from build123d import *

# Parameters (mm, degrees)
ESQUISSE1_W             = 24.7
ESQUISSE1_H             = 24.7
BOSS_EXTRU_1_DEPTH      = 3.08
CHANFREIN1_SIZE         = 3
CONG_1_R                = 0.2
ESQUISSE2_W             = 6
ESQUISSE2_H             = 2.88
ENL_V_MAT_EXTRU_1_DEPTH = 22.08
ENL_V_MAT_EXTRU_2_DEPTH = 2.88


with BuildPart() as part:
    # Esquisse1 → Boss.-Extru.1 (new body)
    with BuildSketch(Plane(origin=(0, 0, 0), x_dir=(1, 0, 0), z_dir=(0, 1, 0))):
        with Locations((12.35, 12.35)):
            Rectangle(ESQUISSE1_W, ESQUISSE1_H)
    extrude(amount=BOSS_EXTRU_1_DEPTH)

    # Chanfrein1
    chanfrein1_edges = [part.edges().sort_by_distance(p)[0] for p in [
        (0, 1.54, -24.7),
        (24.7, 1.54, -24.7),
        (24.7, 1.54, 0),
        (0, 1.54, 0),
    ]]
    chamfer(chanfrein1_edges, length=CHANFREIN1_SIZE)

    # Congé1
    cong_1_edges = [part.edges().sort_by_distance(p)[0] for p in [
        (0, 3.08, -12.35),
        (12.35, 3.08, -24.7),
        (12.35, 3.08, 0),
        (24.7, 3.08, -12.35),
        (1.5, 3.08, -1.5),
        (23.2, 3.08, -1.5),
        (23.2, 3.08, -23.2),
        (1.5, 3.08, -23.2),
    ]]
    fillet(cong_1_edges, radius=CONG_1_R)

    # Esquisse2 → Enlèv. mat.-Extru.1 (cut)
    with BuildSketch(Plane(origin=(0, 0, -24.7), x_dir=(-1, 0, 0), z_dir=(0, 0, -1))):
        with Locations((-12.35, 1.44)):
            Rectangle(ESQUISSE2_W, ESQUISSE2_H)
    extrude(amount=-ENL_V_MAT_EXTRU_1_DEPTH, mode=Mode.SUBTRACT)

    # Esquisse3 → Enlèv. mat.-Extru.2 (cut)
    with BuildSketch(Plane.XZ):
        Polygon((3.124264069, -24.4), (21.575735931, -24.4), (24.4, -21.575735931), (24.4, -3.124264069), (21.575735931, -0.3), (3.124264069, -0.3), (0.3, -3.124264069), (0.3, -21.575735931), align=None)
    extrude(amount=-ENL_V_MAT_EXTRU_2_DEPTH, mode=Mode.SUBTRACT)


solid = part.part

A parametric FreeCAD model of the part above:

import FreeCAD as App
import Part
import Sketcher
Q = App.Units.Quantity


def edges_at(feature, points):
    """Names of the edges that pass closest to the given points."""
    edges = feature.Shape.Edges
    near = lambda p: min(range(len(edges)), key=lambda i: edges[i].distToShape(Part.Vertex(*p))[0])
    return sorted({f"Edge{near(p) + 1}" for p in points})


def add_polygon(sketch, points):
    """Adds a closed chain of lines whose ends are joined by coincident constraints."""
    first, n = sketch.GeometryCount, len(points)
    for a, b in zip(points, points[1:] + points[:1]):
        sketch.addGeometry(Part.LineSegment(App.Vector(*a, 0), App.Vector(*b, 0)), False)
    for i in range(n):
        sketch.addConstraint(Sketcher.Constraint("Coincident", first + i, 2, first + (i + 1) % n, 1))

doc = App.newDocument("Part")
body = doc.addObject("PartDesign::Body", "Body")

sketch1 = body.newObject("Sketcher::SketchObject", "Sketch")
sketch1.AttachmentSupport = (doc.getObject("XZ_Plane"), [""])
sketch1.MapMode = "FlatFace"
add_polygon(sketch1, [(0, -25), (0, 0), (25, 0), (25, -25)])
sketch1.addConstraint([
    Sketcher.Constraint("Vertical", 0),
    Sketcher.Constraint("Horizontal", 1),
    Sketcher.Constraint("Vertical", 2),
    Sketcher.Constraint("Horizontal", 3),
    Sketcher.Constraint("Coincident", 0, 2, -1, 1),
    Sketcher.Constraint("Equal", 3, 0),
    Sketcher.Constraint("DistanceX", 1, 1, 1, 2, Q("24.7 mm")),
])
pad1 = body.newObject("PartDesign::Pad", "Pad")
pad1.Profile = sketch1
pad1.Length = 3.08
pad1.Reversed = True
doc.recompute()

chamfer = body.newObject("PartDesign::Chamfer", "Chamfer")
chamfer.Base = (pad1, edges_at(pad1, [
    (0, 1.54, -24.7),
    (24.7, 1.54, -24.7),
    (24.7, 1.54, 0),
    (0, 1.54, 0),
]))
chamfer.Size = 3
doc.recompute()

fillet = body.newObject("PartDesign::Fillet", "Fillet")
fillet.Base = (chamfer, edges_at(chamfer, [
    (0, 3.08, -12.35),
    (12.35, 3.08, -24.7),
    (12.35, 3.08, 0),
    (24.7, 3.08, -12.35),
    (1.5, 3.08, -1.5),
    (23.2, 3.08, -1.5),
    (23.2, 3.08, -23.2),
    (1.5, 3.08, -23.2),
]))
fillet.Radius = 0.2

sketch2 = body.newObject("Sketcher::SketchObject", "Sketch001")
sketch2.AttachmentSupport = (doc.getObject("XY_Plane"), [""])
sketch2.MapMode = "FlatFace"
sketch2.AttachmentOffset = App.Placement(App.Vector(0, 0, -24.7), App.Rotation())
add_polygon(sketch2, [(15.3, 2.9), (15.3, 0), (9.3, 0), (9.3, 2.9)])
sketch2.addConstraint([
    Sketcher.Constraint("Vertical", 0),
    Sketcher.Constraint("Horizontal", 1),
    Sketcher.Constraint("Vertical", 2),
    Sketcher.Constraint("Horizontal", 3),
    Sketcher.Constraint("PointOnObject", 0, 2, -1),
    Sketcher.Constraint("DistanceX", 1, 2, 1, 1, Q("6 mm")),
    Sketcher.Constraint("DistanceY", 0, 2, 0, 1, Q("2.88 mm")),
    Sketcher.Constraint("DistanceX", -1, 1, 0, 2, Q("15.35 mm")),
])
pocket1 = body.newObject("PartDesign::Pocket", "Pocket")
pocket1.Profile = sketch2
pocket1.Length = 22.08
pocket1.Reversed = True

sketch3 = body.newObject("Sketcher::SketchObject", "Sketch002")
sketch3.AttachmentSupport = (doc.getObject("XZ_Plane"), [""])
sketch3.MapMode = "FlatFace"
add_polygon(sketch3, [(3.1, -24.4), (21.6, -24.4), (24.4, -21.6), (24.4, -3.1), (21.6, -0.3), (3.1, -0.3), (0.3, -3.1), (0.3, -21.6)])
sketch3.addConstraint([
    Sketcher.Constraint("Horizontal", 0),
    Sketcher.Constraint("Vertical", 2),
    Sketcher.Constraint("Horizontal", 4),
    Sketcher.Constraint("Vertical", 6),
    Sketcher.Constraint("Perpendicular", 1, 3),
    Sketcher.Constraint("Perpendicular", 3, 5),
    Sketcher.Constraint("Perpendicular", 5, 7),
    Sketcher.Constraint("Horizontal", 2, 2, 5, 2),
    Sketcher.Constraint("Horizontal", 1, 2, 6, 2),
    Sketcher.Constraint("Vertical", 0, 2, 3, 2),
    Sketcher.Constraint("Vertical", 4, 2, 7, 2),
    Sketcher.Constraint("Equal", 4, 2),
    Sketcher.Constraint("DistanceY", 0, 2, -1, 1, Q("24.4 mm")),
    Sketcher.Constraint("DistanceX", -1, 1, 1, 2, Q("24.4 mm")),
    Sketcher.Constraint("DistanceY", 3, 2, -1, 1, Q("0.3 mm")),
    Sketcher.Constraint("DistanceX", 0, 1, 0, 2, Q("18.451472 mm")),
])
pocket2 = body.newObject("PartDesign::Pocket", "Pocket001")
pocket2.Profile = sketch3
pocket2.Length = 2.88

doc.recompute()
